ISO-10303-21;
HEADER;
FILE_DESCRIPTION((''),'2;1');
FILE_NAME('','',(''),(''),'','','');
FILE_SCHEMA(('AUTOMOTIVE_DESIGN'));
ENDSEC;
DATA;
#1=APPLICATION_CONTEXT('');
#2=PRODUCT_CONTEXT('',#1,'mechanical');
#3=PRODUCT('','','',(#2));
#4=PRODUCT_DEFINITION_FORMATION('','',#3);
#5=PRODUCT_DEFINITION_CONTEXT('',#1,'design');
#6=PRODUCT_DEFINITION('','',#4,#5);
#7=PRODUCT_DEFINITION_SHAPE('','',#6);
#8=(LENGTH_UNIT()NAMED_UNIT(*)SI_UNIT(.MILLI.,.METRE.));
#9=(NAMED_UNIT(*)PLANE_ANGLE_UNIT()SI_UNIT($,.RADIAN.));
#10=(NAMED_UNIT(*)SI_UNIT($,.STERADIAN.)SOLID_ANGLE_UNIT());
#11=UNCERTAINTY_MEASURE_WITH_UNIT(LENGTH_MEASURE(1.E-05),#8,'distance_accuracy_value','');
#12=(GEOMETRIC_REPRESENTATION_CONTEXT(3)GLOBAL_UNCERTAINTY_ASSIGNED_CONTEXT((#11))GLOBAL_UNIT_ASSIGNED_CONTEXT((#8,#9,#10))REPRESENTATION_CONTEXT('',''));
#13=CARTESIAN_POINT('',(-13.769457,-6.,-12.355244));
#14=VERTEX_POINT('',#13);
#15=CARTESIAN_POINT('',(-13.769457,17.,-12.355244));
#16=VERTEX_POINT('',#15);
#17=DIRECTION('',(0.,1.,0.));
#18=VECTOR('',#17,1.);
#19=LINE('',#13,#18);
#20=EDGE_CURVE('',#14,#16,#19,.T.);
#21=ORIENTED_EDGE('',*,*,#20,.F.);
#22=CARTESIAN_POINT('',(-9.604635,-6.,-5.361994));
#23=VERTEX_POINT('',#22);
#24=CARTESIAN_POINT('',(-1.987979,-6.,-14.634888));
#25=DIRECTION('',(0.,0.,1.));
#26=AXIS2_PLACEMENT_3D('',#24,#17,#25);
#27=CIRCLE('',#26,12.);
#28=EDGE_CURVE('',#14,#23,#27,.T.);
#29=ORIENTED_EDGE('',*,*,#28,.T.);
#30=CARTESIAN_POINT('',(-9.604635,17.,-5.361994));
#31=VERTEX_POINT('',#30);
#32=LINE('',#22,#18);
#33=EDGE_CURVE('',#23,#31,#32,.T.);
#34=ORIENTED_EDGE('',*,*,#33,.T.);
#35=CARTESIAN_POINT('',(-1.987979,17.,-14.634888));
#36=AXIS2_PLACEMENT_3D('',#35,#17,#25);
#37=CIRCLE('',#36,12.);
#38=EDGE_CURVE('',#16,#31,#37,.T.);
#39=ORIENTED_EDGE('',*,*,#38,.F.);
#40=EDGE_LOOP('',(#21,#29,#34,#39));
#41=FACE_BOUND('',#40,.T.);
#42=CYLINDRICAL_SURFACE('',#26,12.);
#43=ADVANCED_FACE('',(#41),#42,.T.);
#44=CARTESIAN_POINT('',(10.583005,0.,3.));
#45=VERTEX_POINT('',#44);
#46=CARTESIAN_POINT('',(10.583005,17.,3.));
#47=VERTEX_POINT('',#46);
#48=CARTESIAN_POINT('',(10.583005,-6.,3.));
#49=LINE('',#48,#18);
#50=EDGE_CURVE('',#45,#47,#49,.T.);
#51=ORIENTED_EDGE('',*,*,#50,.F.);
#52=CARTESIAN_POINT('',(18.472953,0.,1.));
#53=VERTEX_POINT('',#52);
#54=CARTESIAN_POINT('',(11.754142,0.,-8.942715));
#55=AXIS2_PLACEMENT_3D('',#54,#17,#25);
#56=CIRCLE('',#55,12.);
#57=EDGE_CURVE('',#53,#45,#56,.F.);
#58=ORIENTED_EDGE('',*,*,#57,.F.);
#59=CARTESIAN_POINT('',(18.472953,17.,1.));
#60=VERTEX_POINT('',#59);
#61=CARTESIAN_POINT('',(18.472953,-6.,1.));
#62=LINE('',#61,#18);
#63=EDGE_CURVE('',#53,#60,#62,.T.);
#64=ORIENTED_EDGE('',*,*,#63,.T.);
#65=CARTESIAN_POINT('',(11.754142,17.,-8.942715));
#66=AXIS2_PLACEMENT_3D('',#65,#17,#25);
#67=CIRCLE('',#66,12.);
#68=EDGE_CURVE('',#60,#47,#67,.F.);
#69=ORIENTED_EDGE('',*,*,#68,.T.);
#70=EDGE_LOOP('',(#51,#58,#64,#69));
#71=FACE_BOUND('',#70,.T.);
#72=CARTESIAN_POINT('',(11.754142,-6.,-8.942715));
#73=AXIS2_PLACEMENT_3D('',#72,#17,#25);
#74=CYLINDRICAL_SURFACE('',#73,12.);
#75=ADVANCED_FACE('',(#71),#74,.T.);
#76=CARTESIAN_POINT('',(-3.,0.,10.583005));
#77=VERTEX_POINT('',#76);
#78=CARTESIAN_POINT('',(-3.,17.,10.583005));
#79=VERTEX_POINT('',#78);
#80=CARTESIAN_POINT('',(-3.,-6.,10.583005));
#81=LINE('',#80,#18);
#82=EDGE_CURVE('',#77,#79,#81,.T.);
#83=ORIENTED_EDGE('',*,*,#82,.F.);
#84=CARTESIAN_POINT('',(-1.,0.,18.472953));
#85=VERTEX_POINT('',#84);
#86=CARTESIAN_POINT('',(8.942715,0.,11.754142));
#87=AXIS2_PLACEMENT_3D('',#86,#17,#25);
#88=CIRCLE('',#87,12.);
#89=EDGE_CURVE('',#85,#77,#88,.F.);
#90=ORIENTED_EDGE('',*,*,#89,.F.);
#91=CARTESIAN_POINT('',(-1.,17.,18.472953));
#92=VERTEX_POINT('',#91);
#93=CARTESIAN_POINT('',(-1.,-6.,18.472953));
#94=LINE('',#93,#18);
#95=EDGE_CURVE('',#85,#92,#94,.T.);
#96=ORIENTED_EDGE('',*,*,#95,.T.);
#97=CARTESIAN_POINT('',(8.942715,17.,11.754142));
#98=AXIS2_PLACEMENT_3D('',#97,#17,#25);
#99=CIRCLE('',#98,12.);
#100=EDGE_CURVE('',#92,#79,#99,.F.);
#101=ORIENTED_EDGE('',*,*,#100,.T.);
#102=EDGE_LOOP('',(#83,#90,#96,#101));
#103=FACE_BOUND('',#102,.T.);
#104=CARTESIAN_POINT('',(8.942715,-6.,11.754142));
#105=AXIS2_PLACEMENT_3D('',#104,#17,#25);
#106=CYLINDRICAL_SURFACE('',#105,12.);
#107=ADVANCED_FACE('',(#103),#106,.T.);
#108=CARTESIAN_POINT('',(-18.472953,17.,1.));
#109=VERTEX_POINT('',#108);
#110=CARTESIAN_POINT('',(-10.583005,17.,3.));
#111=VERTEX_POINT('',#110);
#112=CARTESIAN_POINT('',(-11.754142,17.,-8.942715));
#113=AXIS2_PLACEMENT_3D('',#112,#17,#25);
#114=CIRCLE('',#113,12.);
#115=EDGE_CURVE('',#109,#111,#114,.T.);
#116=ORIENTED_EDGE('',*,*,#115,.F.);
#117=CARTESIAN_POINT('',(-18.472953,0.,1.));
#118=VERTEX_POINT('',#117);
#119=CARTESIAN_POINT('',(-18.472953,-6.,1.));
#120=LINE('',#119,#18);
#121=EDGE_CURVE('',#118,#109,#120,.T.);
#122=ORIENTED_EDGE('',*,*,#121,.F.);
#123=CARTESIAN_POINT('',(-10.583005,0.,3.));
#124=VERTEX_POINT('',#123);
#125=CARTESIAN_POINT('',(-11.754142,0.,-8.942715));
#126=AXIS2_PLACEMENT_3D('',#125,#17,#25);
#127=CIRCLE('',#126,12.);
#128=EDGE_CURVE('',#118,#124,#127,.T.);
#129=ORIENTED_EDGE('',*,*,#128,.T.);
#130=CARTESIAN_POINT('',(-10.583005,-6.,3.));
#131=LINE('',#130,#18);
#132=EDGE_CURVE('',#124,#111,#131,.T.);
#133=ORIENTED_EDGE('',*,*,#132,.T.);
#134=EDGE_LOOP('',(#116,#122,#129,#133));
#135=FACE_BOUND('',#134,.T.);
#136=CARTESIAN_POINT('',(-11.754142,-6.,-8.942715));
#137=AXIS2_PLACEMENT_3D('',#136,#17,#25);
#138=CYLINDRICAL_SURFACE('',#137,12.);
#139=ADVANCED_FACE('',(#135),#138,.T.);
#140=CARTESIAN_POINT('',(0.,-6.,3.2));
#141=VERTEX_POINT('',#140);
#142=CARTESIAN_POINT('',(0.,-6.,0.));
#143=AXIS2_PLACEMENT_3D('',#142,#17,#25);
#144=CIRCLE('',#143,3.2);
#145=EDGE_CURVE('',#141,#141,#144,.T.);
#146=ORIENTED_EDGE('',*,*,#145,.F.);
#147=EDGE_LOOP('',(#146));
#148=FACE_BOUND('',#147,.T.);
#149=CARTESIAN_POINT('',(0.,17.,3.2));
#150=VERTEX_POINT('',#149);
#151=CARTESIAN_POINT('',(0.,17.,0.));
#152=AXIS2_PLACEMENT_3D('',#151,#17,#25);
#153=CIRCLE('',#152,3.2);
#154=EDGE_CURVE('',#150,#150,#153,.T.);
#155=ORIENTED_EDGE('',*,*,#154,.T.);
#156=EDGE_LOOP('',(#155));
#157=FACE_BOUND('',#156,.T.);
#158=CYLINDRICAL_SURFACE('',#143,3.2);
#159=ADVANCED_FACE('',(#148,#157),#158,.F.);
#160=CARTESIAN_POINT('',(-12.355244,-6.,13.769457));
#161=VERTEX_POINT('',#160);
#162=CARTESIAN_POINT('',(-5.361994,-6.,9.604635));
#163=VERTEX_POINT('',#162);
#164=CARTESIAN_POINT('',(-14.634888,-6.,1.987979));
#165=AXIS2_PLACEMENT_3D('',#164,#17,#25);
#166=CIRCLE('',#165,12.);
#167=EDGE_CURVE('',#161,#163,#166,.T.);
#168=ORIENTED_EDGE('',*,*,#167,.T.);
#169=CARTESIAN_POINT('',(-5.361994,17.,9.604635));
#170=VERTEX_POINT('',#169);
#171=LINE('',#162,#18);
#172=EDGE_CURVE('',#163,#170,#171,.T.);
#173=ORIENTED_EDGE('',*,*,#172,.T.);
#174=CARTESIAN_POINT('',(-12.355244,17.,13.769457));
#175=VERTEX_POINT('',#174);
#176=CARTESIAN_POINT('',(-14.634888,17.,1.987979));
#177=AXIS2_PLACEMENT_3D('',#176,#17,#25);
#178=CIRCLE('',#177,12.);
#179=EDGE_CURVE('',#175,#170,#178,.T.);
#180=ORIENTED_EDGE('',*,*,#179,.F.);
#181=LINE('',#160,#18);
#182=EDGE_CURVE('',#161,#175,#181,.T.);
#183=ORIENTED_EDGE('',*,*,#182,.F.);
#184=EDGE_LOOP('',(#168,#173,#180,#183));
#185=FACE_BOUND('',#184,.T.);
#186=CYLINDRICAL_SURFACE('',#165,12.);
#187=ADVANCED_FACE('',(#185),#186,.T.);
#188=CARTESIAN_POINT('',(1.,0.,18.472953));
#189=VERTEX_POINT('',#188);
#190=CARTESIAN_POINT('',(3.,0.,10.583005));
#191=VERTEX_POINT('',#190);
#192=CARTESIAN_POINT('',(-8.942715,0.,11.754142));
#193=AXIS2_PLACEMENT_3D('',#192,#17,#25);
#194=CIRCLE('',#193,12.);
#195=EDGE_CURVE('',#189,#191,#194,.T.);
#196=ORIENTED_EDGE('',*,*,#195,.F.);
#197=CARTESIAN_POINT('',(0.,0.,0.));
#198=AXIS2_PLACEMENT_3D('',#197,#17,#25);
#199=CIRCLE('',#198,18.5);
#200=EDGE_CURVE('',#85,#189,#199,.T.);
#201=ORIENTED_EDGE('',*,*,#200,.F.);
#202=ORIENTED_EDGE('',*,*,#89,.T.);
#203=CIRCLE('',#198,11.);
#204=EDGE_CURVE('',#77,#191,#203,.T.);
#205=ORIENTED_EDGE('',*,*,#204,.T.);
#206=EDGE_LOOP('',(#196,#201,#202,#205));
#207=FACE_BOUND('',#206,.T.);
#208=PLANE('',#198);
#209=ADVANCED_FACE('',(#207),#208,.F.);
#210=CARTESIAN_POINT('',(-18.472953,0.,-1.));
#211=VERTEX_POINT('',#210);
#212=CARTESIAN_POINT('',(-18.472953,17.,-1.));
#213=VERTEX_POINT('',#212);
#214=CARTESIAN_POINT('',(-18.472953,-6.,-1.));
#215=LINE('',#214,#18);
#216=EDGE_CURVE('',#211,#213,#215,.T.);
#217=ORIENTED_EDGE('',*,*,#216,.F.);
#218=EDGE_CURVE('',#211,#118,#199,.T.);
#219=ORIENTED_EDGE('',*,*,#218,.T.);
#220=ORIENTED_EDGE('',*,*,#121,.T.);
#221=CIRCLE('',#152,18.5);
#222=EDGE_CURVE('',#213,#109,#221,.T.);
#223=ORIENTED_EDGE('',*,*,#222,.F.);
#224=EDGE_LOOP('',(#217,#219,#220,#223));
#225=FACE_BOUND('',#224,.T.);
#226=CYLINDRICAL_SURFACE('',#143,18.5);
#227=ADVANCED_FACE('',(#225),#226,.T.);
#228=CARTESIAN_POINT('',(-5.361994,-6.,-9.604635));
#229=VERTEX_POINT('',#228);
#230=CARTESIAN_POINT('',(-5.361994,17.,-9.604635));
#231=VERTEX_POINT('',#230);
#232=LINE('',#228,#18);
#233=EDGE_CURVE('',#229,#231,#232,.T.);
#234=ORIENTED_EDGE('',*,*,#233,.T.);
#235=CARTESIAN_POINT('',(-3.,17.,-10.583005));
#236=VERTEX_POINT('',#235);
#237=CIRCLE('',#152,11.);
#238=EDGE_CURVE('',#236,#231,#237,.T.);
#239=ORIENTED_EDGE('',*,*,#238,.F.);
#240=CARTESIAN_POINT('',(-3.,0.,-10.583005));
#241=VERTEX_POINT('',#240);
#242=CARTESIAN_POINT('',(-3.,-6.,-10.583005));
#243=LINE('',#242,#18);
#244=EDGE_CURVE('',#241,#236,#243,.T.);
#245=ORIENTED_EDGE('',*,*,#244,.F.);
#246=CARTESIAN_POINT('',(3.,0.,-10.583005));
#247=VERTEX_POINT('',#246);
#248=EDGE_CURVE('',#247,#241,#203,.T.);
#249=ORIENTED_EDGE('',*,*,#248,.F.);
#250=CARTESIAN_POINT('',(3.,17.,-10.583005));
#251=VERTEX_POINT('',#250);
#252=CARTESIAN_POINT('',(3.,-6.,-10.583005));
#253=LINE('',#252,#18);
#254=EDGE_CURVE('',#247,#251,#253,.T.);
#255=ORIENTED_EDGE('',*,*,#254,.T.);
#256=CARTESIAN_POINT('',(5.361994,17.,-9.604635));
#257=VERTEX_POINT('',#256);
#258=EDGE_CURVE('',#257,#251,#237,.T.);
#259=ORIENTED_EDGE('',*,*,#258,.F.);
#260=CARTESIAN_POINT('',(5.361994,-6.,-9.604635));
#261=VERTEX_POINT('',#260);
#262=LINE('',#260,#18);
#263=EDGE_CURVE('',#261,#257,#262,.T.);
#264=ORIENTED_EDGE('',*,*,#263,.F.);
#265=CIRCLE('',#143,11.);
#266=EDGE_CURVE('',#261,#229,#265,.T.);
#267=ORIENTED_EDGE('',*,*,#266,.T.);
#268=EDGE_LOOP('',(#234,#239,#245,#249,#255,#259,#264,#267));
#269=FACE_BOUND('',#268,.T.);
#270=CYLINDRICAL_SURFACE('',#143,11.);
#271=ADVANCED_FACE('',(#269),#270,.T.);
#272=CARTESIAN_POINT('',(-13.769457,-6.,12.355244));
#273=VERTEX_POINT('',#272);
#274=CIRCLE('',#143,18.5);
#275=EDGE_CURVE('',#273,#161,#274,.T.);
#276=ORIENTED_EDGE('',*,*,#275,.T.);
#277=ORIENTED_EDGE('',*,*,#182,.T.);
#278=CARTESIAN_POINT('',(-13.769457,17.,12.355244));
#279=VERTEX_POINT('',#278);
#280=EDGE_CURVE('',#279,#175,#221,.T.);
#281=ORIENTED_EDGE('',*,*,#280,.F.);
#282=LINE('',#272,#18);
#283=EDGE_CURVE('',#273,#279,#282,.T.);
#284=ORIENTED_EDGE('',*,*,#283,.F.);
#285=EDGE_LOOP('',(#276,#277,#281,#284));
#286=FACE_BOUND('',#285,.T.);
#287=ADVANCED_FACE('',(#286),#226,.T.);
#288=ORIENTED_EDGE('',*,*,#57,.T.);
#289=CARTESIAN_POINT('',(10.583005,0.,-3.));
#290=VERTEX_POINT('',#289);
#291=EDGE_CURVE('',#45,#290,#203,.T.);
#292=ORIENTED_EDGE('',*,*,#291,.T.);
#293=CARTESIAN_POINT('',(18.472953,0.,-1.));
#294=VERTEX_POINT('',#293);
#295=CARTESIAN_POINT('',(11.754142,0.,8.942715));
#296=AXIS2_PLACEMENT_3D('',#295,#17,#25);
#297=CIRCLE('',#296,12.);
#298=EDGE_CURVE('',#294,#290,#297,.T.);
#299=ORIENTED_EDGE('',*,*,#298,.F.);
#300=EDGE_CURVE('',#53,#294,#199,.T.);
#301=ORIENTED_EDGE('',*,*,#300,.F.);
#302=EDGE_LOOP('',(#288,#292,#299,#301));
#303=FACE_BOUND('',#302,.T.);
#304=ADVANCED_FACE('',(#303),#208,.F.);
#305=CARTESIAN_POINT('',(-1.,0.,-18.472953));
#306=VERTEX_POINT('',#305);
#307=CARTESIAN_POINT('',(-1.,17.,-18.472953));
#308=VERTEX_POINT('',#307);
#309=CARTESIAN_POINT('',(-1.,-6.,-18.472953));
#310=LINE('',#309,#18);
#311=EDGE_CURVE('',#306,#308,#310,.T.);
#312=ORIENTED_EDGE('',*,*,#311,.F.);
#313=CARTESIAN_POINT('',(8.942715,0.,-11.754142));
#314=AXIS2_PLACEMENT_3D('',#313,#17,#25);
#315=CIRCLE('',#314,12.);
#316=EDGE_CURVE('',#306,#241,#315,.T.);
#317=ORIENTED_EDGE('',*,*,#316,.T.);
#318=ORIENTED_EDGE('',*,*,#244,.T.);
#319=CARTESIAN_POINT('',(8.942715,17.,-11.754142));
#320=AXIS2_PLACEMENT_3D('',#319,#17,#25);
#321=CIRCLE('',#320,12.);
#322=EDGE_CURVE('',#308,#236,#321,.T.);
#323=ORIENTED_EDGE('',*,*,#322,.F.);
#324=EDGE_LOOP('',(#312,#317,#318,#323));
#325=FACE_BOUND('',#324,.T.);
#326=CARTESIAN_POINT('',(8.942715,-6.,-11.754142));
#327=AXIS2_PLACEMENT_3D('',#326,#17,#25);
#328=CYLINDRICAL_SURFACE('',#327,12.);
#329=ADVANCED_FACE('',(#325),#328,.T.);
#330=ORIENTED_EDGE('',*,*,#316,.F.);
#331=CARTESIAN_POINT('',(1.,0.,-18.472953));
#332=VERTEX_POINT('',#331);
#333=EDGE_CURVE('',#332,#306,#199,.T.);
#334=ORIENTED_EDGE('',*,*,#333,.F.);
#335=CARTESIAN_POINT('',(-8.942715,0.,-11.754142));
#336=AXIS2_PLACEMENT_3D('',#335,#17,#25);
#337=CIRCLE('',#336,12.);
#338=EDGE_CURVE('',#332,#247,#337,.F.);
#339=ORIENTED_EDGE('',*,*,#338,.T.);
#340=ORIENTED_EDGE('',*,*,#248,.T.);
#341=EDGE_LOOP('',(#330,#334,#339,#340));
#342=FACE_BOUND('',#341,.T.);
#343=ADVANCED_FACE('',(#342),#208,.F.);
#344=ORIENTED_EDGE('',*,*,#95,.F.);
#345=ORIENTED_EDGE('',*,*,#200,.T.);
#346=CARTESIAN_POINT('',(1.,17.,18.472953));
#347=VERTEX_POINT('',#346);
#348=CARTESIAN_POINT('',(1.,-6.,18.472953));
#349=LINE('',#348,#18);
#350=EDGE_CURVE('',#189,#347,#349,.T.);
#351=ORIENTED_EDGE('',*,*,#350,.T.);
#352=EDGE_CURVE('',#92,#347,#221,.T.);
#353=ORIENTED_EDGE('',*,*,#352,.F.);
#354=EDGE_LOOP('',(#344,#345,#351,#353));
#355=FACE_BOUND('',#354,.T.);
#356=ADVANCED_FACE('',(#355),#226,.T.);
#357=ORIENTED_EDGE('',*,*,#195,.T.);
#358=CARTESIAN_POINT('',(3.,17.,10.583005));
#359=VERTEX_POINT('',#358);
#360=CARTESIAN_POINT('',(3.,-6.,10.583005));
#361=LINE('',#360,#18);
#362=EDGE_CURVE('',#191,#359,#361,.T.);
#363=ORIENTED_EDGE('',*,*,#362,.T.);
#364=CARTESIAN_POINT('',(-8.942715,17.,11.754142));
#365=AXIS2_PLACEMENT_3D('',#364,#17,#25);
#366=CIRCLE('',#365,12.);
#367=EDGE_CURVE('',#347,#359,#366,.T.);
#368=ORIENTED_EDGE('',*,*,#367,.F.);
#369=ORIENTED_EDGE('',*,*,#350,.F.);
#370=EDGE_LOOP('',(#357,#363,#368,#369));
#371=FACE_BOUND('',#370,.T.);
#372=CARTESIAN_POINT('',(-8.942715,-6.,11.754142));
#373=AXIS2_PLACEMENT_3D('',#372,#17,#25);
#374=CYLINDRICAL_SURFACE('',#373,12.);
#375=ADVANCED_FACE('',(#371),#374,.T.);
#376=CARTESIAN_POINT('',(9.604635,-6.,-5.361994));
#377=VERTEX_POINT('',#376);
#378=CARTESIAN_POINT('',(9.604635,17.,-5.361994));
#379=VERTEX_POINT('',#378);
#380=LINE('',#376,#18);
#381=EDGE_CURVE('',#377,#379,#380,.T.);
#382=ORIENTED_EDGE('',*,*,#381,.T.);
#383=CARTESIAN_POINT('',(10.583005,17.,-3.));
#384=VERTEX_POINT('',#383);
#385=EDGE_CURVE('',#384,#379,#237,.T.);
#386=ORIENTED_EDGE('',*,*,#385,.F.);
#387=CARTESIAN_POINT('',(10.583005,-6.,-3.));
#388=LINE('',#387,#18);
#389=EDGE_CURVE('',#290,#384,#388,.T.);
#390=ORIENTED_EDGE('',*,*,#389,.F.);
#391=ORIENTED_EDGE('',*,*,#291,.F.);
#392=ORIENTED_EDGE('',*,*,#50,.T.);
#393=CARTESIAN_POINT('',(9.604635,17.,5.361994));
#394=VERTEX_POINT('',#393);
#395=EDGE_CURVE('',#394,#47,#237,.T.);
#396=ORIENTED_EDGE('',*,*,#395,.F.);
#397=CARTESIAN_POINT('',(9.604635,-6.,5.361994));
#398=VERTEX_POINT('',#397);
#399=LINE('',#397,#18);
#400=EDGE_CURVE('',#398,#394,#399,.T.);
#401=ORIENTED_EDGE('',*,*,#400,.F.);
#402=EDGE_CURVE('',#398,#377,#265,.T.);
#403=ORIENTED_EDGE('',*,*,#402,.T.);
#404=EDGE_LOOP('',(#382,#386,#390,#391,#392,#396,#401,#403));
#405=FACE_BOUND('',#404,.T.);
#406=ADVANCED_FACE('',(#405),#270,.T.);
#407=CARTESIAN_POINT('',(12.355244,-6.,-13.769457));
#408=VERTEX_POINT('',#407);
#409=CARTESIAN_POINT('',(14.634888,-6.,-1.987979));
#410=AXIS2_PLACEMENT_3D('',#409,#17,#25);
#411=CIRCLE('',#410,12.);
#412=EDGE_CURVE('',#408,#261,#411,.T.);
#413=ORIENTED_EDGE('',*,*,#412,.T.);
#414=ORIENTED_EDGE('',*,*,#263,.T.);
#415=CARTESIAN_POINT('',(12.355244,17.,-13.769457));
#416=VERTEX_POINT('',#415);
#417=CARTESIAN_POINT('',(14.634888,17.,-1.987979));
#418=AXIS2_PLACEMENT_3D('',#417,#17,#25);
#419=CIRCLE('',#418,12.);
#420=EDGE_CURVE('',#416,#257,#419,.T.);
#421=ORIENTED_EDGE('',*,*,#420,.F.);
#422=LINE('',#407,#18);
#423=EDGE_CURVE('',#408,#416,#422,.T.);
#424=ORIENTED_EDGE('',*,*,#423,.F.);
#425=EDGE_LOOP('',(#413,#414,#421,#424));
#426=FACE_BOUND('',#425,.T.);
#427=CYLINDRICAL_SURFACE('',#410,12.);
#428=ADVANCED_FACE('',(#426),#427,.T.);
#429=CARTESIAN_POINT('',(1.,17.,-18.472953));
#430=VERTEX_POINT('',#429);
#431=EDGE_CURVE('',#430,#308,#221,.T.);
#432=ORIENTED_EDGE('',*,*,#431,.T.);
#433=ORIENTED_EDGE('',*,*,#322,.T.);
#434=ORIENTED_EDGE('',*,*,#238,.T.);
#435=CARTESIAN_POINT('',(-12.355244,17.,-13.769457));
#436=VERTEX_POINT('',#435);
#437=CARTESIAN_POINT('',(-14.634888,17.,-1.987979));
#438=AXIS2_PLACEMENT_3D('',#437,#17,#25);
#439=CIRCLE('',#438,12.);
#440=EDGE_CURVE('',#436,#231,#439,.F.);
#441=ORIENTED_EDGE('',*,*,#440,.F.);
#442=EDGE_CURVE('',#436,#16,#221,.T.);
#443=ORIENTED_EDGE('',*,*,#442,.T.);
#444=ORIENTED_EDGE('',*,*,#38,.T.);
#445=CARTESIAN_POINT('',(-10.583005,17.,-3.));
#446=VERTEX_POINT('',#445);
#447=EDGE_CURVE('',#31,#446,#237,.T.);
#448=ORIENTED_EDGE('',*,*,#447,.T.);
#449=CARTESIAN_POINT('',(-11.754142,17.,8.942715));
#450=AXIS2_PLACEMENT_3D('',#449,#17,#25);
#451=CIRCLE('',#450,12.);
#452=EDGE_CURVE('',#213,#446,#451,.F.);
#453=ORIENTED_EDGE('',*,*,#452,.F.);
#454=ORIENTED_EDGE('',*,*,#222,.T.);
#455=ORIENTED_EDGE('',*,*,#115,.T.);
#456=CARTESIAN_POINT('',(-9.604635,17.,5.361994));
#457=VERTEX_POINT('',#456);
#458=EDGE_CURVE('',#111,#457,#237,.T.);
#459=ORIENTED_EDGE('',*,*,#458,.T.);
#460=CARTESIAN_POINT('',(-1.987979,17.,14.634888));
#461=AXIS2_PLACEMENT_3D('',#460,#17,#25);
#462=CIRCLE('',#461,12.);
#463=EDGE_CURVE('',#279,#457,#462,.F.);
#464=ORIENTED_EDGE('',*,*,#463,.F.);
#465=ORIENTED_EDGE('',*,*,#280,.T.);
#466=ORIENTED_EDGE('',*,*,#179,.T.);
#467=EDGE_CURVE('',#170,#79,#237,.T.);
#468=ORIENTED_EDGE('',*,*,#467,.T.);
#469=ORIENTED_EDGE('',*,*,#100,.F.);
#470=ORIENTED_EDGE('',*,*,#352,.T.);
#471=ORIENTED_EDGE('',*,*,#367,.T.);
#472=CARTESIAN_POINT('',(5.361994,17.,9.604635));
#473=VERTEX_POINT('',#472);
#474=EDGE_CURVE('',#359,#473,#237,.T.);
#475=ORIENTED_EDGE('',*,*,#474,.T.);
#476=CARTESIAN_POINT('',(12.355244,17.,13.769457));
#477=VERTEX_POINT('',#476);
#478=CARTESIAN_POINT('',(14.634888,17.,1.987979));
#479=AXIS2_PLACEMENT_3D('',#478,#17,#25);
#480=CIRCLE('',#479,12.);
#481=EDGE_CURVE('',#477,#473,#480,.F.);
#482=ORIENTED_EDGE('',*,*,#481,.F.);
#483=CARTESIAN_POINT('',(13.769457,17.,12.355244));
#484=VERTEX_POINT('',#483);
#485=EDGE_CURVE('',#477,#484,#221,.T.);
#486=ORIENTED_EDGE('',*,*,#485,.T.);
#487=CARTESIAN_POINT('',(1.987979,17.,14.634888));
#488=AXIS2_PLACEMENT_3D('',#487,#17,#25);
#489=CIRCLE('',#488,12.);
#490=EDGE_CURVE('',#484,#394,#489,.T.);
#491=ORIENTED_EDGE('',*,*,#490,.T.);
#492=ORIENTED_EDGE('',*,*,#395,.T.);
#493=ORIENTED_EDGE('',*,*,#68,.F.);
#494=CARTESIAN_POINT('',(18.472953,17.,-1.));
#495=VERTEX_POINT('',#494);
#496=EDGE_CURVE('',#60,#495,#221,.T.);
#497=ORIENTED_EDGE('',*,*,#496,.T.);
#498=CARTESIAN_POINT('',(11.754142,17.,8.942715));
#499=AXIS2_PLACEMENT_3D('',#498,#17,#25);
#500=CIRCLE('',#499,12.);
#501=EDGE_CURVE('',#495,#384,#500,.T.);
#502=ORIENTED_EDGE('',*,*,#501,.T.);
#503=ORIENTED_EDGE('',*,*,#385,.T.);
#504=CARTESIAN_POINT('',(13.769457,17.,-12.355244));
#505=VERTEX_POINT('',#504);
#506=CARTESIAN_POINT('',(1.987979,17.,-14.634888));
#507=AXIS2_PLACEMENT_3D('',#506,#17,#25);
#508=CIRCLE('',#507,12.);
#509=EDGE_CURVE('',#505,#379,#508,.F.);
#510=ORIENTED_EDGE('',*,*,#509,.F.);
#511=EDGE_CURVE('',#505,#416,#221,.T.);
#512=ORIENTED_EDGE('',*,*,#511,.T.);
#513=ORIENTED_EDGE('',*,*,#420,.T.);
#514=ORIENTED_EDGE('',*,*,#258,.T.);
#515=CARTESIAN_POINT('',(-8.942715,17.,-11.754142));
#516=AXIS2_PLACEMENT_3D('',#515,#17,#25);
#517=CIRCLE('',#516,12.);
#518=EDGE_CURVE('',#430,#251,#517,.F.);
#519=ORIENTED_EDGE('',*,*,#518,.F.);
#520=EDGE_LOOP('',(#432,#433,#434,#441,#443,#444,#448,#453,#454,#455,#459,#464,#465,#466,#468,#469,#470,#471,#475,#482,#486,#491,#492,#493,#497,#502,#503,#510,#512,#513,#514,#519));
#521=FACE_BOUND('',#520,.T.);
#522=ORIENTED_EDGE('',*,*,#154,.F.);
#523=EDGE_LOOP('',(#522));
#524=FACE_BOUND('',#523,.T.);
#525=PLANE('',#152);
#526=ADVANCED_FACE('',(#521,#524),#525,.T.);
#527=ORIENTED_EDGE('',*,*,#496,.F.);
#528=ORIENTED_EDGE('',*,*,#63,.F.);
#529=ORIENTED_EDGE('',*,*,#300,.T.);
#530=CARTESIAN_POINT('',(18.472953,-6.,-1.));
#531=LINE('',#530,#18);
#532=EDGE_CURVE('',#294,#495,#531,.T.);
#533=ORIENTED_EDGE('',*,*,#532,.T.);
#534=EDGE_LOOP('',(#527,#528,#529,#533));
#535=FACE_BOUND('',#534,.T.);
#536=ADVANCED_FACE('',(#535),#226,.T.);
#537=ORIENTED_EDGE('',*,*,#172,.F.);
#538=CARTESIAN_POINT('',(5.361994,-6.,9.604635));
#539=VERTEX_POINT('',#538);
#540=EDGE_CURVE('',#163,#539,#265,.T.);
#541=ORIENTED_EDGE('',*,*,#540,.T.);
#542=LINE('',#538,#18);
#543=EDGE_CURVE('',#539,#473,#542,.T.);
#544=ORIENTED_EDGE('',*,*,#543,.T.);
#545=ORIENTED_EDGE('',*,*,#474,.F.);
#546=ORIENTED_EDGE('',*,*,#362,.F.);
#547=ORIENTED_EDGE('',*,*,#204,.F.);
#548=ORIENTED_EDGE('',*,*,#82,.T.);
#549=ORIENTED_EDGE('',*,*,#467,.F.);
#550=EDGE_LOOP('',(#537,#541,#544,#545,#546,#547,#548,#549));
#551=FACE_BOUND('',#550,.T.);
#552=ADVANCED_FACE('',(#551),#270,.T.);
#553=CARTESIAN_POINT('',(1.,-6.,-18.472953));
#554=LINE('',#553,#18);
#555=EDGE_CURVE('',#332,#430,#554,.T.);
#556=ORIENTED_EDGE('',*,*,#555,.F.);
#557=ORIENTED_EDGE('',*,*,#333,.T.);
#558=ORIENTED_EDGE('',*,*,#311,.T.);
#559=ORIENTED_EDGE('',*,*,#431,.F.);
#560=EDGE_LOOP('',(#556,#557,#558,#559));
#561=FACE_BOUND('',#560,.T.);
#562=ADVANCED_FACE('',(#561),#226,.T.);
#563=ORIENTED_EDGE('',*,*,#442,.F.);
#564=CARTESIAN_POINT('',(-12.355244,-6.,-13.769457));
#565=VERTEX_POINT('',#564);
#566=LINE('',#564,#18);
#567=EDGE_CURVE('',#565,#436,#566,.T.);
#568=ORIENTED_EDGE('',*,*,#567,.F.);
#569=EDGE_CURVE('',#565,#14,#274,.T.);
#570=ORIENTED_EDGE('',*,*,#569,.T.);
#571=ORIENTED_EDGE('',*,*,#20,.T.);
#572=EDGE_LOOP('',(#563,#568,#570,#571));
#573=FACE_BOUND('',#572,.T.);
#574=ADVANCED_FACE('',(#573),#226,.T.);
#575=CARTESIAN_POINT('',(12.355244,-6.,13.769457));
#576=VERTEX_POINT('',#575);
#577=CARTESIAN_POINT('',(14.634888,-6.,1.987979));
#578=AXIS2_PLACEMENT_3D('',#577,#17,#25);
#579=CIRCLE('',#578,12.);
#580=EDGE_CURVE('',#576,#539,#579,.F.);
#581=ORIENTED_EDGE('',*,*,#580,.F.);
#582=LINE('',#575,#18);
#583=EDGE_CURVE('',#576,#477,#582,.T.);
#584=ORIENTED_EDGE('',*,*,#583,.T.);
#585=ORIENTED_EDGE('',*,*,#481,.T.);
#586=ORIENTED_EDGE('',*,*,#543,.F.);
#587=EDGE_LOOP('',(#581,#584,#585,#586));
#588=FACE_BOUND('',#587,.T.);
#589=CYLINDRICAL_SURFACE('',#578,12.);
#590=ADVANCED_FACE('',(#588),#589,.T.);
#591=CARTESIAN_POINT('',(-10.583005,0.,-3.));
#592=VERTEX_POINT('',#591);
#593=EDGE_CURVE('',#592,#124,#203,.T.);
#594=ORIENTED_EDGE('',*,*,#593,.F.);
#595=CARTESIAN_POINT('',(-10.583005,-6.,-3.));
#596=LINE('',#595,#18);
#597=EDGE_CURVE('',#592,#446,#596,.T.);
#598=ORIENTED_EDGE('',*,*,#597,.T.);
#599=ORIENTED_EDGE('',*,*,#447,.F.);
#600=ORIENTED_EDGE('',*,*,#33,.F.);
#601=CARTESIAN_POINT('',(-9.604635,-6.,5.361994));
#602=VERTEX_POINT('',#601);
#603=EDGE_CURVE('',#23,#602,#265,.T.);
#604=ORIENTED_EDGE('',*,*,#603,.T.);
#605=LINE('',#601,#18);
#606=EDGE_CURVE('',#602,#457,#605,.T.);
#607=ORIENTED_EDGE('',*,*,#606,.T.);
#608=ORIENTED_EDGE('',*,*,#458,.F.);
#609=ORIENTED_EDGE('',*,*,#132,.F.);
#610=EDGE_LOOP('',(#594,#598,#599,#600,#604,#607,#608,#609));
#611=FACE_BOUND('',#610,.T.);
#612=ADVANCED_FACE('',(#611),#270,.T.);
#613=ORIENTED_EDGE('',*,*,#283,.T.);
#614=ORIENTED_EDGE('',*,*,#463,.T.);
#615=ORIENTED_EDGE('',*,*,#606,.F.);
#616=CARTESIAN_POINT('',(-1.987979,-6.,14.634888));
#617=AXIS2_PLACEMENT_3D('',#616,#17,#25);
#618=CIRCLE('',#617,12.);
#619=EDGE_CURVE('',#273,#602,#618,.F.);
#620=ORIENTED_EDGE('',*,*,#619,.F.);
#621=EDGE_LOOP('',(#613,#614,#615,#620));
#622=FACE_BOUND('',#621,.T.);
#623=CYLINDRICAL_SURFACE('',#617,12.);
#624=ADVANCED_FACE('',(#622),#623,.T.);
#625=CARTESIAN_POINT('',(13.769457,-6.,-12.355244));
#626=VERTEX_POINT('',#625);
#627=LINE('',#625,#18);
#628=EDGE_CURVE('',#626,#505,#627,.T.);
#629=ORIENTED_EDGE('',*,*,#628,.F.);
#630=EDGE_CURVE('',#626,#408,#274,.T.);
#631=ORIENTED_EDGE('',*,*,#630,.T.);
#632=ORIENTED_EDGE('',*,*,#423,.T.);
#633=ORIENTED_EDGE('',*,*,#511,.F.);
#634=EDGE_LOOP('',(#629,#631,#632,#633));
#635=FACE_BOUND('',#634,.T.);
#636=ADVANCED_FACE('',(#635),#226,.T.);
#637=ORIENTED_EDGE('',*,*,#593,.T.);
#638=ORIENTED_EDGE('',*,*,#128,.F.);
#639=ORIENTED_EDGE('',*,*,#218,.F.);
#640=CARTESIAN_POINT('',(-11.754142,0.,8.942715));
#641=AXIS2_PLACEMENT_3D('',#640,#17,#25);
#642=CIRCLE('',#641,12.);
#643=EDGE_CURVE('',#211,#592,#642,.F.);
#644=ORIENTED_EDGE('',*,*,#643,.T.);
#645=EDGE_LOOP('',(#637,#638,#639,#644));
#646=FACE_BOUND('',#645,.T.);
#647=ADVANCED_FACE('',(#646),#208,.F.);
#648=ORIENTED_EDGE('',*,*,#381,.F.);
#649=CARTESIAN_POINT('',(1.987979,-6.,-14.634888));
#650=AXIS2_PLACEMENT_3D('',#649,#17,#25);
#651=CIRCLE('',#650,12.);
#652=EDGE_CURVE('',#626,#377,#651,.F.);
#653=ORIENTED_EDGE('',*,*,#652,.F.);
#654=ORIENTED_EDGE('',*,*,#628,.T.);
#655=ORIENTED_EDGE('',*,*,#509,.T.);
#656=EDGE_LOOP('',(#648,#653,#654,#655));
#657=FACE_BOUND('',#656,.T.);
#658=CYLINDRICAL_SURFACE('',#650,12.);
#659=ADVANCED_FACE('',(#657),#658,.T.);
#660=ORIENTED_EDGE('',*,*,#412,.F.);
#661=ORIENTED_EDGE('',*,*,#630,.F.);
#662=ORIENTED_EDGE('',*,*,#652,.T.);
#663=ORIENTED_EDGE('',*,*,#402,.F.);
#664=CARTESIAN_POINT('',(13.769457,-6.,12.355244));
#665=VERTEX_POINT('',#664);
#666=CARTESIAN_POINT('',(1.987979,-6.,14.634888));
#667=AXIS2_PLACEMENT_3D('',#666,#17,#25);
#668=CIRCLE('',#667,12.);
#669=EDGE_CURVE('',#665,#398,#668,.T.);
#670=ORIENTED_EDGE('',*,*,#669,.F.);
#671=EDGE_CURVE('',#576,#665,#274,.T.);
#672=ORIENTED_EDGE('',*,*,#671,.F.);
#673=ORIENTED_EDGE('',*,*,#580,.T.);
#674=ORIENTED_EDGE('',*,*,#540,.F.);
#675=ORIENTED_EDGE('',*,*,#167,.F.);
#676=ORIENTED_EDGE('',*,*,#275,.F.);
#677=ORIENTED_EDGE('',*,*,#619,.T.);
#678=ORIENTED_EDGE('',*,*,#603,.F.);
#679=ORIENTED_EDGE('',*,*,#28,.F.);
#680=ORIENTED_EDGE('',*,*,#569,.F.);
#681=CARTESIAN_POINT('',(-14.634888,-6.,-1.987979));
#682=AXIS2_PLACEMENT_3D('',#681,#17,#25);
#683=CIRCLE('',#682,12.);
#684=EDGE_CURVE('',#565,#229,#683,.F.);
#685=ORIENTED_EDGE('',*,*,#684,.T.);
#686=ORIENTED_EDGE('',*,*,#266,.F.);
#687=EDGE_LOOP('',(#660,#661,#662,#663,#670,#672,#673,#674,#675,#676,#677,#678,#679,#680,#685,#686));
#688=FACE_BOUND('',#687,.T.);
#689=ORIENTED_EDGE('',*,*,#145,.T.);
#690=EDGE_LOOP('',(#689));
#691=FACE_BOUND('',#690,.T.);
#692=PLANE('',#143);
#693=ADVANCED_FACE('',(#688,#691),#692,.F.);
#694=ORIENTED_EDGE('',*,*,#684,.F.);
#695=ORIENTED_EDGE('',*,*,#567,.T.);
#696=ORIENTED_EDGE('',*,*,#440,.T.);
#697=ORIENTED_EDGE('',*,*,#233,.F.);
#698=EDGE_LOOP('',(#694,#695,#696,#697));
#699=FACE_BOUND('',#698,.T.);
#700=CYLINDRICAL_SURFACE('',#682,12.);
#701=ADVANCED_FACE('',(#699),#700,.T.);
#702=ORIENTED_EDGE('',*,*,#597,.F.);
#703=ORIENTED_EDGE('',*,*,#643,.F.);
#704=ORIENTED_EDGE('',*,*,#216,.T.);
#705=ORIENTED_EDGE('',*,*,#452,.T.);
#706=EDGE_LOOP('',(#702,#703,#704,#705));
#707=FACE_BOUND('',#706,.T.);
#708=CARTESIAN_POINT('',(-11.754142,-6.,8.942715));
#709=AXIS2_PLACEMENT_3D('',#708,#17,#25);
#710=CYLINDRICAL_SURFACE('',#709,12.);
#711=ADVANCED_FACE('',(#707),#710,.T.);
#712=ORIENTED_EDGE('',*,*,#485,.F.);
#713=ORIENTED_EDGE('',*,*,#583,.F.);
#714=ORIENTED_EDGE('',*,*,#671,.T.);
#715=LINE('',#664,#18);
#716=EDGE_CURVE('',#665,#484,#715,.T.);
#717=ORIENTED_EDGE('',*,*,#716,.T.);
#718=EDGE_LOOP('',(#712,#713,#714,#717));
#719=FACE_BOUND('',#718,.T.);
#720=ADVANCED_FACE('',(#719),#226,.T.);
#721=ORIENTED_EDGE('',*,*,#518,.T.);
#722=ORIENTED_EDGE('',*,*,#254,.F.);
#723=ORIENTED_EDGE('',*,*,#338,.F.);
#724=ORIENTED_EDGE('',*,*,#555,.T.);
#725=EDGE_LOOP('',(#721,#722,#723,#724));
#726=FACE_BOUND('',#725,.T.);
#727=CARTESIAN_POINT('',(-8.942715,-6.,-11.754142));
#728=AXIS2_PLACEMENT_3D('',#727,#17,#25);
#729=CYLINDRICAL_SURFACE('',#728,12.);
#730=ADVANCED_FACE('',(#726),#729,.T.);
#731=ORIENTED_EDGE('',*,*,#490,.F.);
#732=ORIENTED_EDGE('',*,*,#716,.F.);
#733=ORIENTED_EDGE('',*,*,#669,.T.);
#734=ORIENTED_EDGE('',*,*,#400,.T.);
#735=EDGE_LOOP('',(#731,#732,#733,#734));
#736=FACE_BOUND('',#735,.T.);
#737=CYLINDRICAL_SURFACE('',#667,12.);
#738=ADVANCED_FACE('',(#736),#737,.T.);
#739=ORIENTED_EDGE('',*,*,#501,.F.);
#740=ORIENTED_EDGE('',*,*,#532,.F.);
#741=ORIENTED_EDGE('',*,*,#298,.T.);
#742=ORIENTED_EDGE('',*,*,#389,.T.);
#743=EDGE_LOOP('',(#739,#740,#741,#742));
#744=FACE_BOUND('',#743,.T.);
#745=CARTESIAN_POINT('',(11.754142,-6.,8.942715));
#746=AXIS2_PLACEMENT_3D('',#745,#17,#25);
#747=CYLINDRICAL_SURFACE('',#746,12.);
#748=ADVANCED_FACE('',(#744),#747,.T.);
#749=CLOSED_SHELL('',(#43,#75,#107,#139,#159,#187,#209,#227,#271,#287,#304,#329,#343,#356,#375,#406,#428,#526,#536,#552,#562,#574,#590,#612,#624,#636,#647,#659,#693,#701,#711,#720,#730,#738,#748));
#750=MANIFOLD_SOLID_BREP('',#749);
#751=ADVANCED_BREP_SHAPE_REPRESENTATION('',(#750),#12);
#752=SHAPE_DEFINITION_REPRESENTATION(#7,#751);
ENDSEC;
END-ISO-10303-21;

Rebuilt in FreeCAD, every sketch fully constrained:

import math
import FreeCAD as App
import Part
import Sketcher

doc = App.newDocument("Part")
body = doc.addObject("PartDesign::Body", "Body")

# Sketch on XZ plane
sketch1 = body.newObject("Sketcher::SketchObject", "Sketch")
sketch1.AttachmentSupport = (doc.getObject("XZ_Plane"), [""])
sketch1.MapMode = "FlatFace"
sketch1.addGeometry(Part.ArcOfCircle(Part.Circle(App.Vector(0, 0, 0), App.Vector(0, 0, 1), 11), math.radians(-29.17338), math.radians(-15.82662)), False)
sketch1.addGeometry(Part.ArcOfCircle(Part.Circle(App.Vector(1.987979, -14.634888, 0), App.Vector(0, 0, 1), 12), math.radians(10.951054), math.radians(50.600682)), False)
sketch1.addGeometry(Part.ArcOfCircle(Part.Circle(App.Vector(0, 0, 0), App.Vector(0, 0, 1), 18.5), math.radians(-48.098579), math.radians(-41.901421)), False)
sketch1.addGeometry(Part.ArcOfCircle(Part.Circle(App.Vector(14.634888, -1.987979, 0), App.Vector(0, 0, 1), 12), math.radians(-140.600682), math.radians(-100.951054)), False)
sketch1.addGeometry(Part.ArcOfCircle(Part.Circle(App.Vector(0, 0, 0), App.Vector(0, 0, 1), 11), math.radians(-74.17338), math.radians(-60.82662)), False)
sketch1.addGeometry(Part.ArcOfCircle(Part.Circle(App.Vector(-8.942715, -11.754142, 0), App.Vector(0, 0, 1), 12), math.radians(-34.048946), math.radians(5.600682)), False)
sketch1.addGeometry(Part.ArcOfCircle(Part.Circle(App.Vector(0, 0, 0), App.Vector(0, 0, 1), 18.5), math.radians(-93.098579), math.radians(-86.901421)), False)
sketch1.addGeometry(Part.ArcOfCircle(Part.Circle(App.Vector(8.942715, -11.754142, 0), App.Vector(0, 0, 1), 12), math.radians(174.399318), math.radians(214.048946)), False)
sketch1.addGeometry(Part.ArcOfCircle(Part.Circle(App.Vector(0, 0, 0), App.Vector(0, 0, 1), 11), math.radians(-119.17338), math.radians(-105.82662)), False)
sketch1.addGeometry(Part.ArcOfCircle(Part.Circle(App.Vector(-14.634888, -1.987979, 0), App.Vector(0, 0, 1), 12), math.radians(-79.048946), math.radians(-39.399318)), False)
sketch1.addGeometry(Part.ArcOfCircle(Part.Circle(App.Vector(0, 0, 0), App.Vector(0, 0, 1), 18.5), math.radians(-138.098579), math.radians(-131.901421)), False)
sketch1.addGeometry(Part.ArcOfCircle(Part.Circle(App.Vector(-1.987979, -14.634888, 0), App.Vector(0, 0, 1), 12), math.radians(129.399318), math.radians(169.048946)), False)
sketch1.addGeometry(Part.ArcOfCircle(Part.Circle(App.Vector(0, 0, 0), App.Vector(0, 0, 1), 11), math.radians(-164.17338), math.radians(-150.82662)), False)
sketch1.addGeometry(Part.ArcOfCircle(Part.Circle(App.Vector(-11.754142, 8.942715, 0), App.Vector(0, 0, 1), 12), math.radians(-124.048946), math.radians(-84.399318)), False)
sketch1.addGeometry(Part.ArcOfCircle(Part.Circle(App.Vector(0, 0, 0), App.Vector(0, 0, 1), 18.5), math.radians(176.901421), math.radians(183.098579)), False)
sketch1.addGeometry(Part.ArcOfCircle(Part.Circle(App.Vector(-11.754142, -8.942715, 0), App.Vector(0, 0, 1), 12), math.radians(84.399318), math.radians(124.048946)), False)
sketch1.addGeometry(Part.ArcOfCircle(Part.Circle(App.Vector(0, 0, 0), App.Vector(0, 0, 1), 11), math.radians(150.82662), math.radians(164.17338)), False)
sketch1.addGeometry(Part.ArcOfCircle(Part.Circle(App.Vector(-1.987979, 14.634888, 0), App.Vector(0, 0, 1), 12), math.radians(-169.048946), math.radians(-129.399318)), False)
sketch1.addGeometry(Part.ArcOfCircle(Part.Circle(App.Vector(0, 0, 0), App.Vector(0, 0, 1), 18.5), math.radians(131.901421), math.radians(138.098579)), False)
sketch1.addGeometry(Part.ArcOfCircle(Part.Circle(App.Vector(-14.634888, 1.987979, 0), App.Vector(0, 0, 1), 12), math.radians(39.399318), math.radians(79.048946)), False)
sketch1.addGeometry(Part.ArcOfCircle(Part.Circle(App.Vector(0, 0, 0), App.Vector(0, 0, 1), 11), math.radians(105.82662), math.radians(119.17338)), False)
sketch1.addGeometry(Part.ArcOfCircle(Part.Circle(App.Vector(8.942715, 11.754142, 0), App.Vector(0, 0, 1), 12), math.radians(145.951054), math.radians(185.600682)), False)
sketch1.addGeometry(Part.ArcOfCircle(Part.Circle(App.Vector(0, 0, 0), App.Vector(0, 0, 1), 18.5), math.radians(86.901421), math.radians(93.098579)), False)
sketch1.addGeometry(Part.ArcOfCircle(Part.Circle(App.Vector(-8.942715, 11.754142, 0), App.Vector(0, 0, 1), 12), math.radians(-5.600682), math.radians(34.048946)), False)
sketch1.addGeometry(Part.ArcOfCircle(Part.Circle(App.Vector(0, 0, 0), App.Vector(0, 0, 1), 11), math.radians(60.82662), math.radians(74.17338)), False)
sketch1.addGeometry(Part.ArcOfCircle(Part.Circle(App.Vector(14.634888, 1.987979, 0), App.Vector(0, 0, 1), 12), math.radians(100.951054), math.radians(140.600682)), False)
sketch1.addGeometry(Part.ArcOfCircle(Part.Circle(App.Vector(0, 0, 0), App.Vector(0, 0, 1), 18.5), math.radians(41.901421), math.radians(48.098579)), False)
sketch1.addGeometry(Part.ArcOfCircle(Part.Circle(App.Vector(1.987979, 14.634888, 0), App.Vector(0, 0, 1), 12), math.radians(-50.600682), math.radians(-10.951054)), False)
sketch1.addGeometry(Part.ArcOfCircle(Part.Circle(App.Vector(0, 0, 0), App.Vector(0, 0, 1), 11), math.radians(15.82662), math.radians(29.17338)), False)
sketch1.addGeometry(Part.ArcOfCircle(Part.Circle(App.Vector(11.754142, -8.942715, 0), App.Vector(0, 0, 1), 12), math.radians(55.951054), math.radians(95.600682)), False)
sketch1.addGeometry(Part.ArcOfCircle(Part.Circle(App.Vector(-0.000001, 0, 0), App.Vector(0, 0, 1), 18.500001), math.radians(0), math.radians(3.098579)), False)
sketch1.addGeometry(Part.ArcOfCircle(Part.Circle(App.Vector(-0.000001, 0, 0), App.Vector(0, 0, 1), 18.500001), math.radians(-3.098579), math.radians(0)), False)
sketch1.addGeometry(Part.ArcOfCircle(Part.Circle(App.Vector(11.754142, 8.942715, 0), App.Vector(0, 0, 1), 12), math.radians(-95.600682), math.radians(-55.951054)), False)
sketch1.addGeometry(Part.Circle(App.Vector(0, 0, 0), App.Vector(0, 0, 1), 3.2), False)
sketch1.addConstraint(Sketcher.Constraint("Coincident", 0, 1, 1, 2))
sketch1.addConstraint(Sketcher.Constraint("Coincident", 1, 1, 2, 2))
sketch1.addConstraint(Sketcher.Constraint("Coincident", 2, 1, 3, 2))
sketch1.addConstraint(Sketcher.Constraint("Coincident", 3, 1, 4, 2))
sketch1.addConstraint(Sketcher.Constraint("Coincident", 4, 1, 5, 2))
sketch1.addConstraint(Sketcher.Constraint("Coincident", 5, 1, 6, 2))
sketch1.addConstraint(Sketcher.Constraint("Coincident", 6, 1, 7, 2))
sketch1.addConstraint(Sketcher.Constraint("Coincident", 7, 1, 8, 2))
sketch1.addConstraint(Sketcher.Constraint("Coincident", 8, 1, 9, 2))
sketch1.addConstraint(Sketcher.Constraint("Coincident", 9, 1, 10, 2))
sketch1.addConstraint(Sketcher.Constraint("Coincident", 10, 1, 11, 2))
sketch1.addConstraint(Sketcher.Constraint("Coincident", 11, 1, 12, 2))
sketch1.addConstraint(Sketcher.Constraint("Coincident", 12, 1, 13, 2))
sketch1.addConstraint(Sketcher.Constraint("Coincident", 13, 1, 14, 2))
sketch1.addConstraint(Sketcher.Constraint("Coincident", 14, 1, 15, 2))
sketch1.addConstraint(Sketcher.Constraint("Coincident", 15, 1, 16, 2))
sketch1.addConstraint(Sketcher.Constraint("Coincident", 16, 1, 17, 2))
sketch1.addConstraint(Sketcher.Constraint("Coincident", 17, 1, 18, 2))
sketch1.addConstraint(Sketcher.Constraint("Coincident", 18, 1, 19, 2))
sketch1.addConstraint(Sketcher.Constraint("Coincident", 19, 1, 20, 2))
sketch1.addConstraint(Sketcher.Constraint("Coincident", 20, 1, 21, 2))
sketch1.addConstraint(Sketcher.Constraint("Coincident", 21, 1, 22, 2))
sketch1.addConstraint(Sketcher.Constraint("Coincident", 22, 1, 23, 2))
sketch1.addConstraint(Sketcher.Constraint("Coincident", 23, 1, 24, 2))
sketch1.addConstraint(Sketcher.Constraint("Coincident", 24, 1, 25, 2))
sketch1.addConstraint(Sketcher.Constraint("Coincident", 25, 1, 26, 2))
sketch1.addConstraint(Sketcher.Constraint("Coincident", 26, 1, 27, 2))
sketch1.addConstraint(Sketcher.Constraint("Coincident", 27, 1, 28, 2))
sketch1.addConstraint(Sketcher.Constraint("Coincident", 28, 1, 29, 2))
sketch1.addConstraint(Sketcher.Constraint("Coincident", 29, 1, 30, 2))
sketch1.addConstraint(Sketcher.Constraint("Tangent", 30, 1, 31, 2))
sketch1.addConstraint(Sketcher.Constraint("Coincident", 31, 1, 32, 2))
sketch1.addConstraint(Sketcher.Constraint("Coincident", 32, 1, 0, 2))
sketch1.addConstraint(Sketcher.Constraint("Coincident", 0, 3, -1, 1))
sketch1.addConstraint(Sketcher.Constraint("Coincident", 2, 3, -1, 1))
sketch1.addConstraint(Sketcher.Constraint("Coincident", 4, 3, -1, 1))
sketch1.addConstraint(Sketcher.Constraint("Coincident", 6, 3, -1, 1))
sketch1.addConstraint(Sketcher.Constraint("Coincident", 8, 3, -1, 1))
sketch1.addConstraint(Sketcher.Constraint("Coincident", 10, 3, -1, 1))
sketch1.addConstraint(Sketcher.Constraint("Coincident", 12, 3, -1, 1))
sketch1.addConstraint(Sketcher.Constraint("Coincident", 14, 3, -1, 1))
sketch1.addConstraint(Sketcher.Constraint("Coincident", 16, 3, -1, 1))
sketch1.addConstraint(Sketcher.Constraint("Coincident", 18, 3, -1, 1))
sketch1.addConstraint(Sketcher.Constraint("Coincident", 20, 3, -1, 1))
sketch1.addConstraint(Sketcher.Constraint("Coincident", 22, 3, -1, 1))
sketch1.addConstraint(Sketcher.Constraint("Coincident", 24, 3, -1, 1))
sketch1.addConstraint(Sketcher.Constraint("Coincident", 26, 3, -1, 1))
sketch1.addConstraint(Sketcher.Constraint("Coincident", 28, 3, -1, 1))
sketch1.addConstraint(Sketcher.Constraint("Coincident", 30, 3, -1, 1))
sketch1.addConstraint(Sketcher.Constraint("Coincident", 33, 3, -1, 1))
sketch1.addConstraint(Sketcher.Constraint("Equal", 1, 3))
sketch1.addConstraint(Sketcher.Constraint("Equal", 0, 4))
sketch1.addConstraint(Sketcher.Constraint("Equal", 3, 5))
sketch1.addConstraint(Sketcher.Constraint("Equal", 2, 6))
sketch1.addConstraint(Sketcher.Constraint("Equal", 5, 7))
sketch1.addConstraint(Sketcher.Constraint("Equal", 4, 8))
sketch1.addConstraint(Sketcher.Constraint("Equal", 7, 9))
sketch1.addConstraint(Sketcher.Constraint("Equal", 6, 10))
sketch1.addConstraint(Sketcher.Constraint("Equal", 9, 11))
sketch1.addConstraint(Sketcher.Constraint("Equal", 8, 12))
sketch1.addConstraint(Sketcher.Constraint("Equal", 11, 13))
sketch1.addConstraint(Sketcher.Constraint("Equal", 10, 14))
sketch1.addConstraint(Sketcher.Constraint("Equal", 13, 15))
sketch1.addConstraint(Sketcher.Constraint("Equal", 12, 16))
sketch1.addConstraint(Sketcher.Constraint("Equal", 15, 17))
sketch1.addConstraint(Sketcher.Constraint("Equal", 14, 18))
sketch1.addConstraint(Sketcher.Constraint("Equal", 17, 19))
sketch1.addConstraint(Sketcher.Constraint("Equal", 16, 20))
sketch1.addConstraint(Sketcher.Constraint("Equal", 19, 21))
sketch1.addConstraint(Sketcher.Constraint("Equal", 18, 22))
sketch1.addConstraint(Sketcher.Constraint("Equal", 21, 23))
sketch1.addConstraint(Sketcher.Constraint("Equal", 20, 24))
sketch1.addConstraint(Sketcher.Constraint("Equal", 23, 25))
sketch1.addConstraint(Sketcher.Constraint("Equal", 22, 26))
sketch1.addConstraint(Sketcher.Constraint("Equal", 25, 27))
sketch1.addConstraint(Sketcher.Constraint("Equal", 24, 28))
sketch1.addConstraint(Sketcher.Constraint("Equal", 27, 29))
sketch1.addConstraint(Sketcher.Constraint("Equal", 26, 30))
sketch1.addConstraint(Sketcher.Constraint("Equal", 30, 31))
sketch1.addConstraint(Sketcher.Constraint("Equal", 29, 32))
sketch1.addConstraint(Sketcher.Constraint("Symmetric", 1, 3, 17, 3, -1, 1))
sketch1.addConstraint(Sketcher.Constraint("Symmetric", 3, 3, 19, 3, -1, 1))
sketch1.addConstraint(Sketcher.Constraint("Symmetric", 5, 3, 21, 3, -1, 1))
sketch1.addConstraint(Sketcher.Constraint("Symmetric", 7, 3, 23, 3, -1, 1))
sketch1.addConstraint(Sketcher.Constraint("Symmetric", 9, 3, 25, 3, -1, 1))
sketch1.addConstraint(Sketcher.Constraint("Symmetric", 11, 3, 27, 3, -1, 1))
sketch1.addConstraint(Sketcher.Constraint("Symmetric", 13, 3, 29, 3, -1, 1))
sketch1.addConstraint(Sketcher.Constraint("Symmetric", 15, 3, 32, 3, -1, 1))
sketch1.addConstraint(Sketcher.Constraint("Symmetric", 5, 3, 7, 3, -2))
sketch1.addConstraint(Sketcher.Constraint("Symmetric", 3, 3, 9, 3, -2))
sketch1.addConstraint(Sketcher.Constraint("Symmetric", 1, 3, 11, 3, -2))
sketch1.addConstraint(Sketcher.Constraint("Symmetric", 15, 3, 29, 3, -2))
sketch1.addConstraint(Sketcher.Constraint("PointOnObject", 30, 1, -1))
sketch1.addConstraint(Sketcher.Constraint("Radius", 0, 11.0))
sketch1.addConstraint(Sketcher.Constraint("Radius", 1, 12.0))
sketch1.addConstraint(Sketcher.Constraint("Diameter", 33, 6.4))
sketch1.addConstraint(Sketcher.Constraint("Radius", 2, 18.5))
sketch1.addConstraint(Sketcher.Constraint("DistanceX", -1, 1, 4, 1, 3.0))
sketch1.addConstraint(Sketcher.Constraint("DistanceX", -1, 1, 5, 1, 1.0))
sketch1.addConstraint(Sketcher.Constraint("DistanceY", 12, 1, -1, 1, 3.0))
sketch1.addConstraint(Sketcher.Constraint("DistanceY", 13, 1, -1, 1, 1.0))
sketch1.addConstraint(Sketcher.Constraint("DistanceX", -1, 1, 1, 3, 1.987979))
sketch1.addConstraint(Sketcher.Constraint("DistanceY", 3, 3, -1, 1, 1.987979))
sketch1.addConstraint(Sketcher.Constraint("DistanceY", 1, 3, -1, 1, 14.634888))
sketch1.addConstraint(Sketcher.Constraint("DistanceX", -1, 1, 3, 3, 14.634888))
pad1 = body.newObject("PartDesign::Pad", "Pad")
pad1.Profile = sketch1
pad1.Type = "TwoLengths"
pad1.Length = 17
pad1.Length2 = 6
pad1.Reversed = True

# Sketch on XZ plane
sketch2 = body.newObject("Sketcher::SketchObject", "Sketch001")
sketch2.AttachmentSupport = (doc.getObject("XZ_Plane"), [""])
sketch2.MapMode = "FlatFace"
sketch2.AttachmentOffset = App.Placement(App.Vector(0, 0, 10), App.Rotation())
sketch2.addGeometry(Part.ArcOfCircle(Part.Circle(App.Vector(-0.000001, 0, 0), App.Vector(0, 0, 1), 18.500001), math.radians(0), math.radians(3.098579)), False)
sketch2.addGeometry(Part.ArcOfCircle(Part.Circle(App.Vector(-0.000001, 0, 0), App.Vector(0, 0, 1), 18.500001), math.radians(-3.098579), math.radians(0)), False)
sketch2.addGeometry(Part.ArcOfCircle(Part.Circle(App.Vector(11.754142, 8.942715, 0), App.Vector(0, 0, 1), 12), math.radians(-95.600682), math.radians(-55.951054)), False)
sketch2.addGeometry(Part.ArcOfCircle(Part.Circle(App.Vector(0, 0, 0), App.Vector(0, 0, 1), 11), math.radians(-15.82662), math.radians(0)), False)
sketch2.addGeometry(Part.ArcOfCircle(Part.Circle(App.Vector(0, 0, 0), App.Vector(0, 0, 1), 11), math.radians(0), math.radians(15.82662)), False)
sketch2.addGeometry(Part.ArcOfCircle(Part.Circle(App.Vector(11.754142, -8.942715, 0), App.Vector(0, 0, 1), 12), math.radians(55.951054), math.radians(95.600682)), False)
sketch2.addGeometry(Part.ArcOfCircle(Part.Circle(App.Vector(-8.942715, -11.754142, 0), App.Vector(0, 0, 1), 12), math.radians(-34.048946), math.radians(5.600682)), False)
sketch2.addGeometry(Part.ArcOfCircle(Part.Circle(App.Vector(0, 0, 0), App.Vector(0, 0, 1), 18.5), math.radians(-93.098579), math.radians(-86.901421)), False)
sketch2.addGeometry(Part.ArcOfCircle(Part.Circle(App.Vector(8.942715, -11.754142, 0), App.Vector(0, 0, 1), 12), math.radians(174.399318), math.radians(214.048946)), False)
sketch2.addGeometry(Part.ArcOfCircle(Part.Circle(App.Vector(0, 0, 0), App.Vector(0, 0, 1), 11), math.radians(-105.82662), math.radians(-74.17338)), False)
sketch2.addGeometry(Part.ArcOfCircle(Part.Circle(App.Vector(-11.754142, 8.942715, 0), App.Vector(0, 0, 1), 12), math.radians(-124.048946), math.radians(-84.399318)), False)
sketch2.addGeometry(Part.ArcOfCircle(Part.Circle(App.Vector(0, 0, 0), App.Vector(0, 0, 1), 18.5), math.radians(176.901421), math.radians(183.098579)), False)
sketch2.addGeometry(Part.ArcOfCircle(Part.Circle(App.Vector(-11.754142, -8.942715, 0), App.Vector(0, 0, 1), 12), math.radians(84.399318), math.radians(124.048946)), False)
sketch2.addGeometry(Part.ArcOfCircle(Part.Circle(App.Vector(0, 0, 0), App.Vector(0, 0, 1), 11), math.radians(164.17338), math.radians(195.82662)), False)
sketch2.addGeometry(Part.ArcOfCircle(Part.Circle(App.Vector(0, 0, 0), App.Vector(0, 0, 1), 18.5), math.radians(86.901421), math.radians(93.098579)), False)
sketch2.addGeometry(Part.ArcOfCircle(Part.Circle(App.Vector(-8.942715, 11.754142, 0), App.Vector(0, 0, 1), 12), math.radians(-5.600682), math.radians(34.048946)), False)
sketch2.addGeometry(Part.ArcOfCircle(Part.Circle(App.Vector(0, 0, 0), App.Vector(0, 0, 1), 11), math.radians(74.17338), math.radians(105.82662)), False)
sketch2.addGeometry(Part.ArcOfCircle(Part.Circle(App.Vector(8.942715, 11.754142, 0), App.Vector(0, 0, 1), 12), math.radians(145.951054), math.radians(185.600682)), False)
sketch2.addConstraint(Sketcher.Constraint("Tangent", 0, 1, 1, 2))
sketch2.addConstraint(Sketcher.Constraint("Coincident", 1, 1, 2, 2))
sketch2.addConstraint(Sketcher.Constraint("Coincident", 2, 1, 3, 1))
sketch2.addConstraint(Sketcher.Constraint("Tangent", 3, 2, 4, 1))
sketch2.addConstraint(Sketcher.Constraint("Coincident", 4, 2, 5, 2))
sketch2.addConstraint(Sketcher.Constraint("Coincident", 5, 1, 0, 2))
sketch2.addConstraint(Sketcher.Constraint("Coincident", 6, 1, 7, 2))
sketch2.addConstraint(Sketcher.Constraint("Coincident", 7, 1, 8, 2))
sketch2.addConstraint(Sketcher.Constraint("Coincident", 8, 1, 9, 1))
sketch2.addConstraint(Sketcher.Constraint("Coincident", 9, 2, 6, 2))
sketch2.addConstraint(Sketcher.Constraint("Coincident", 10, 1, 11, 2))
sketch2.addConstraint(Sketcher.Constraint("Coincident", 11, 1, 12, 2))
sketch2.addConstraint(Sketcher.Constraint("Coincident", 12, 1, 13, 1))
sketch2.addConstraint(Sketcher.Constraint("Coincident", 13, 2, 10, 2))
sketch2.addConstraint(Sketcher.Constraint("Coincident", 14, 1, 15, 2))
sketch2.addConstraint(Sketcher.Constraint("Coincident", 15, 1, 16, 1))
sketch2.addConstraint(Sketcher.Constraint("Coincident", 16, 2, 17, 2))
sketch2.addConstraint(Sketcher.Constraint("Coincident", 17, 1, 14, 2))
sketch2.addConstraint(Sketcher.Constraint("Coincident", 0, 3, -1, 1))
sketch2.addConstraint(Sketcher.Constraint("Coincident", 3, 3, -1, 1))
sketch2.addConstraint(Sketcher.Constraint("Coincident", 7, 3, -1, 1))
sketch2.addConstraint(Sketcher.Constraint("Coincident", 9, 3, -1, 1))
sketch2.addConstraint(Sketcher.Constraint("Coincident", 11, 3, -1, 1))
sketch2.addConstraint(Sketcher.Constraint("Coincident", 13, 3, -1, 1))
sketch2.addConstraint(Sketcher.Constraint("Coincident", 14, 3, -1, 1))
sketch2.addConstraint(Sketcher.Constraint("Coincident", 16, 3, -1, 1))
sketch2.addConstraint(Sketcher.Constraint("Equal", 0, 1))
sketch2.addConstraint(Sketcher.Constraint("Equal", 3, 4))
sketch2.addConstraint(Sketcher.Constraint("Equal", 2, 5))
sketch2.addConstraint(Sketcher.Constraint("Equal", 5, 6))
sketch2.addConstraint(Sketcher.Constraint("Equal", 1, 7))
sketch2.addConstraint(Sketcher.Constraint("Equal", 6, 8))
sketch2.addConstraint(Sketcher.Constraint("Equal", 4, 9))
sketch2.addConstraint(Sketcher.Constraint("Equal", 8, 10))
sketch2.addConstraint(Sketcher.Constraint("Equal", 7, 11))
sketch2.addConstraint(Sketcher.Constraint("Equal", 10, 12))
sketch2.addConstraint(Sketcher.Constraint("Equal", 9, 13))
sketch2.addConstraint(Sketcher.Constraint("Equal", 11, 14))
sketch2.addConstraint(Sketcher.Constraint("Equal", 12, 15))
sketch2.addConstraint(Sketcher.Constraint("Equal", 13, 16))
sketch2.addConstraint(Sketcher.Constraint("Equal", 15, 17))
sketch2.addConstraint(Sketcher.Constraint("Symmetric", 5, 3, 10, 3, -1, 1))
sketch2.addConstraint(Sketcher.Constraint("Symmetric", 2, 3, 12, 3, -1, 1))
sketch2.addConstraint(Sketcher.Constraint("Symmetric", 8, 3, 15, 3, -1, 1))
sketch2.addConstraint(Sketcher.Constraint("Symmetric", 6, 3, 17, 3, -1, 1))
sketch2.addConstraint(Sketcher.Constraint("Symmetric", 6, 3, 8, 3, -2))
sketch2.addConstraint(Sketcher.Constraint("Symmetric", 2, 3, 10, 3, -2))
sketch2.addConstraint(Sketcher.Constraint("PointOnObject", 0, 1, -1))
sketch2.addConstraint(Sketcher.Constraint("PointOnObject", 3, 2, -1))
sketch2.addConstraint(Sketcher.Constraint("Radius", 2, 12.0))
sketch2.addConstraint(Sketcher.Constraint("Radius", 3, 11.0))
sketch2.addConstraint(Sketcher.Constraint("Radius", 0, 18.500001))
sketch2.addConstraint(Sketcher.Constraint("DistanceY", 1, 1, -1, 1, 1.0))
sketch2.addConstraint(Sketcher.Constraint("DistanceY", 2, 1, -1, 1, 3.0))
sketch2.addConstraint(Sketcher.Constraint("DistanceX", -1, 1, 6, 1, 1.0))
sketch2.addConstraint(Sketcher.Constraint("DistanceX", 8, 1, -1, 1, 3.0))
pocket1 = body.newObject("PartDesign::Pocket", "Pocket")
pocket1.Profile = sketch2
pocket1.Length = 10

doc.recompute()
